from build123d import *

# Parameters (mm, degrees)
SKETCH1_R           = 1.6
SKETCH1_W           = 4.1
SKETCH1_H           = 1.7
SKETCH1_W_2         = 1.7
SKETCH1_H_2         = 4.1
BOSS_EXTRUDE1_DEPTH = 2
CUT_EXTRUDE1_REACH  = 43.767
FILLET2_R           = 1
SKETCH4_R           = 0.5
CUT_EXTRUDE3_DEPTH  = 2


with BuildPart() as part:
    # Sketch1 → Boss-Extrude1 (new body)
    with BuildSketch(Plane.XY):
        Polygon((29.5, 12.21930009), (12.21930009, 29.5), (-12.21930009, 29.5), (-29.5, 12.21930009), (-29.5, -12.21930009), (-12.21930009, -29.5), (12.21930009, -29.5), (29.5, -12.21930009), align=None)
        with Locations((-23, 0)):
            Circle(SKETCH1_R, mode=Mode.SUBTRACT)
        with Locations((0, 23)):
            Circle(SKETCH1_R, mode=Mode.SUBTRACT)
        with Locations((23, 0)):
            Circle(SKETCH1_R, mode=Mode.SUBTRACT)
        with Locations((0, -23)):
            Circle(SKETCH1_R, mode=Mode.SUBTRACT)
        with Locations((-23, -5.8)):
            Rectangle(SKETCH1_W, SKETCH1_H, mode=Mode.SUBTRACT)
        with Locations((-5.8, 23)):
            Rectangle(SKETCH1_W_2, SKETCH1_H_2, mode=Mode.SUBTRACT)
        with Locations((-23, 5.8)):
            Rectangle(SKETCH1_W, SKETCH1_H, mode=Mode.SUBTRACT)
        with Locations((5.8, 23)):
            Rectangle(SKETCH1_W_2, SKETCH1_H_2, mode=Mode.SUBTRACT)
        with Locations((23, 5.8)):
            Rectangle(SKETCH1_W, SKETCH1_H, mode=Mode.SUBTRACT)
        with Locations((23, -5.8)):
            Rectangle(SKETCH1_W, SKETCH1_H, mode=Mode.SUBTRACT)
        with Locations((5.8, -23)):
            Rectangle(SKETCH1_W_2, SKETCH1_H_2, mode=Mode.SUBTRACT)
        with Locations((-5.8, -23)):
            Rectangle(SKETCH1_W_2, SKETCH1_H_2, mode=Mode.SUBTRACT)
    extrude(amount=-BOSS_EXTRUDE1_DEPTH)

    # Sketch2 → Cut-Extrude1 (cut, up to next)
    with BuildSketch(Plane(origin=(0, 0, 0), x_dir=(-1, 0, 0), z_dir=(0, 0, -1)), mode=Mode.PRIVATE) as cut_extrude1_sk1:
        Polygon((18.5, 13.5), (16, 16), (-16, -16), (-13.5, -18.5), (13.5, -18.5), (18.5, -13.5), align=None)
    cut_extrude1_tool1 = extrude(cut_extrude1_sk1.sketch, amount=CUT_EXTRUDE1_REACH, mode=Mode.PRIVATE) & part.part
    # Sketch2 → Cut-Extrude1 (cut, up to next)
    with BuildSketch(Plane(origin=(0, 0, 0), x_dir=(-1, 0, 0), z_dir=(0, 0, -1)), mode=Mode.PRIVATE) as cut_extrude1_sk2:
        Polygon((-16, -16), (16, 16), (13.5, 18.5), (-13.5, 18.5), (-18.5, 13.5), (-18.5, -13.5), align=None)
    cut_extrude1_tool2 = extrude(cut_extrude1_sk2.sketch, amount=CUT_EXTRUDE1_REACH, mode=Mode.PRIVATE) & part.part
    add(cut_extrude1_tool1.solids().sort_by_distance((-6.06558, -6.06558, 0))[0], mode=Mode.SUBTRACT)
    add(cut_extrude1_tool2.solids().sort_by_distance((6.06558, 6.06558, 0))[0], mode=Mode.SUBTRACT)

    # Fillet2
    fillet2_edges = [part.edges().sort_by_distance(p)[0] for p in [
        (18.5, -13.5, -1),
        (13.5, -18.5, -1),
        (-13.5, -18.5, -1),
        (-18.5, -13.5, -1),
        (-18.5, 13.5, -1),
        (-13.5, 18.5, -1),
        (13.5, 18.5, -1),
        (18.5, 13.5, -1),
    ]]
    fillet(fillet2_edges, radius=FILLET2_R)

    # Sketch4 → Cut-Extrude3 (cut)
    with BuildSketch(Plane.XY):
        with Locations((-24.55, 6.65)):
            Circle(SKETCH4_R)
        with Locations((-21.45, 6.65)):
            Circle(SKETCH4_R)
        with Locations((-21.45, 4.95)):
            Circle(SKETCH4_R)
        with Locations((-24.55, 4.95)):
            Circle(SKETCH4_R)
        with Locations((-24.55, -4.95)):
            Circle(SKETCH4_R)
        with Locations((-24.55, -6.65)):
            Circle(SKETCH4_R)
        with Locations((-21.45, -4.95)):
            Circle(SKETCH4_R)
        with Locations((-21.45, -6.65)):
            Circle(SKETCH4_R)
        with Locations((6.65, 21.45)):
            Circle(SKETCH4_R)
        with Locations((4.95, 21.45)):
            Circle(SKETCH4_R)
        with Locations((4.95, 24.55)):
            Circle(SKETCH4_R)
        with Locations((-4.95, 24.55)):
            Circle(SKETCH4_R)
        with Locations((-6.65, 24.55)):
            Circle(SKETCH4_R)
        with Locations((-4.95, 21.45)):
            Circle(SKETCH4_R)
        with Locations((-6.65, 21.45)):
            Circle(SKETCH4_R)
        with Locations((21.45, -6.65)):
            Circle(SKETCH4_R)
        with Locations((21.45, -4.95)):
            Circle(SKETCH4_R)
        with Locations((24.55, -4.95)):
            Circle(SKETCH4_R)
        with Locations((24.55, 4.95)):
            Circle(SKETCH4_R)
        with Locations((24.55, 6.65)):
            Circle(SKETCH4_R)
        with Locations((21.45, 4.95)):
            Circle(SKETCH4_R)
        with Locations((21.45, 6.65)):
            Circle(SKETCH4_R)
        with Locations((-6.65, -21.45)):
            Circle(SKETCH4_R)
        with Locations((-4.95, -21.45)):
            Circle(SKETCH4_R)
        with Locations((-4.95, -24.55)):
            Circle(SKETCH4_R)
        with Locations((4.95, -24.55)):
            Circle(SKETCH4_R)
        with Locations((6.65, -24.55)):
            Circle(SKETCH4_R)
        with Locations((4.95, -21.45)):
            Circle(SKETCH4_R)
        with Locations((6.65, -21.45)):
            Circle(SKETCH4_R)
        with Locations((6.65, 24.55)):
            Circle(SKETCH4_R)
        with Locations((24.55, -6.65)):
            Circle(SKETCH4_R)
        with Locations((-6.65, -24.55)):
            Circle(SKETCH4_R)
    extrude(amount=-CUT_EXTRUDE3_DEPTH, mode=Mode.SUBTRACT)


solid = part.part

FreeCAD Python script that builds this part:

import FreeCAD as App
import Part
import Sketcher

V = App.Vector


def edges_at(feature, points):
    """Names of the edges that pass closest to the given points."""
    edges = feature.Shape.Edges
    near = lambda p: min(range(len(edges)), key=lambda i: edges[i].distToShape(Part.Vertex(*p))[0])
    return sorted({f"Edge{near(p) + 1}" for p in points})

doc = App.newDocument("Part")
params = doc.addObject("Spreadsheet::Sheet", "Params")
for row, (alias, value) in enumerate([
    ("sketch1_diameter", "3.2 mm"),
    ("sketch1_width", "1.7 mm"),
    ("sketch1_width2", "4.1 mm"),
    ("pad1_length", "2 mm"),
    ("sketch2_width", "27 mm"),
    ("sketch3_width", "27 mm"),
    ("fillet_radius", "1 mm"),
    ("sketch4_diameter", "1 mm"),
    ("pocket3_length", "2 mm"),
], start=1):
    params.set(f"A{row}", alias)
    params.set(f"B{row}", "=" + value)
    params.setAlias(f"B{row}", alias)

body = doc.addObject("PartDesign::Body", "Body")

sketch1 = body.newObject("Sketcher::SketchObject", "Sketch")
sketch1.AttachmentSupport = (doc.getObject("XY_Plane"), [""])
sketch1.MapMode = "FlatFace"
sketch1.addGeometry([
    Part.LineSegment(V(29.5, 12.2, 0), V(12.2, 29.5, 0)),
    Part.LineSegment(V(12.2, 29.5, 0), V(-12.2, 29.5, 0)),
    Part.LineSegment(V(-12.2, 29.5, 0), V(-29.5, 12.2, 0)),
    Part.LineSegment(V(-29.5, 12.2, 0), V(-29.5, -12.2, 0)),
    Part.LineSegment(V(-29.5, -12.2, 0), V(-12.2, -29.5, 0)),
    Part.LineSegment(V(-12.2, -29.5, 0), V(12.2, -29.5, 0)),
    Part.LineSegment(V(12.2, -29.5, 0), V(29.5, -12.2, 0)),
    Part.LineSegment(V(29.5, -12.2, 0), V(29.5, 12.2, 0)),
    Part.LineSegment(V(-5, -25.1, 0), V(-6.7, -25.1, 0)),
    Part.LineSegment(V(-6.7, -25.1, 0), V(-6.7, -20.9, 0)),
    Part.LineSegment(V(-6.7, -20.9, 0), V(-5, -20.9, 0)),
    Part.LineSegment(V(-5, -20.9, 0), V(-5, -25.1, 0)),
    Part.LineSegment(V(-20.9, -6.7, 0), V(-25.1, -6.7, 0)),
    Part.LineSegment(V(-25.1, -6.7, 0), V(-25.1, -5, 0)),
    Part.LineSegment(V(-25.1, -5, 0), V(-20.9, -5, 0)),
    Part.LineSegment(V(-20.9, -5, 0), V(-20.9, -6.7, 0)),
    Part.Circle(V(0, -23, 0), V(0, 0, 1), 1.6),
    Part.LineSegment(V(6.7, -25.1, 0), V(5, -25.1, 0)),
    Part.LineSegment(V(5, -25.1, 0), V(5, -20.9, 0)),
    Part.LineSegment(V(5, -20.9, 0), V(6.7, -20.9, 0)),
    Part.LineSegment(V(6.7, -20.9, 0), V(6.7, -25.1, 0)),
    Part.LineSegment(V(25.1, -6.7, 0), V(20.9, -6.7, 0)),
    Part.LineSegment(V(20.9, -6.7, 0), V(20.9, -5, 0)),
    Part.LineSegment(V(20.9, -5, 0), V(25.1, -5, 0)),
    Part.LineSegment(V(25.1, -5, 0), V(25.1, -6.7, 0)),
    Part.Circle(V(-23, 0, 0), V(0, 0, 1), 1.6),
    Part.LineSegment(V(-20.9, 5, 0), V(-25.1, 5, 0)),
    Part.LineSegment(V(-25.1, 5, 0), V(-25.1, 6.7, 0)),
    Part.LineSegment(V(-25.1, 6.7, 0), V(-20.9, 6.7, 0)),
    Part.LineSegment(V(-20.9, 6.7, 0), V(-20.9, 5, 0)),
    Part.LineSegment(V(-5, 20.9, 0), V(-6.7, 20.9, 0)),
    Part.LineSegment(V(-6.7, 20.9, 0), V(-6.7, 25.1, 0)),
    Part.LineSegment(V(-6.7, 25.1, 0), V(-5, 25.1, 0)),
    Part.LineSegment(V(-5, 25.1, 0), V(-5, 20.9, 0)),
    Part.Circle(V(23, 0, 0), V(0, 0, 1), 1.6),
    Part.LineSegment(V(25.1, 5, 0), V(20.9, 5, 0)),
    Part.LineSegment(V(20.9, 5, 0), V(20.9, 6.7, 0)),
    Part.LineSegment(V(20.9, 6.7, 0), V(25.1, 6.7, 0)),
    Part.LineSegment(V(25.1, 6.7, 0), V(25.1, 5, 0)),
    Part.Circle(V(0, 23, 0), V(0, 0, 1), 1.6),
    Part.LineSegment(V(6.7, 20.9, 0), V(5, 20.9, 0)),
    Part.LineSegment(V(5, 20.9, 0), V(5, 25.1, 0)),
    Part.LineSegment(V(5, 25.1, 0), V(6.7, 25.1, 0)),
    Part.LineSegment(V(6.7, 25.1, 0), V(6.7, 20.9, 0)),
], False)
sketch1.addConstraint([
    Sketcher.Constraint("Coincident", 0, 2, 1, 1),
    Sketcher.Constraint("Coincident", 1, 2, 2, 1),
    Sketcher.Constraint("Coincident", 2, 2, 3, 1),
    Sketcher.Constraint("Coincident", 3, 2, 4, 1),
    Sketcher.Constraint("Coincident", 4, 2, 5, 1),
    Sketcher.Constraint("Coincident", 5, 2, 6, 1),
    Sketcher.Constraint("Coincident", 6, 2, 7, 1),
    Sketcher.Constraint("Coincident", 7, 2, 0, 1),
    Sketcher.Constraint("Coincident", 8, 2, 9, 1),
    Sketcher.Constraint("Coincident", 9, 2, 10, 1),
    Sketcher.Constraint("Coincident", 10, 2, 11, 1),
    Sketcher.Constraint("Coincident", 11, 2, 8, 1),
    Sketcher.Constraint("Coincident", 12, 2, 13, 1),
    Sketcher.Constraint("Coincident", 13, 2, 14, 1),
    Sketcher.Constraint("Coincident", 14, 2, 15, 1),
    Sketcher.Constraint("Coincident", 15, 2, 12, 1),
    Sketcher.Constraint("Coincident", 17, 2, 18, 1),
    Sketcher.Constraint("Coincident", 18, 2, 19, 1),
    Sketcher.Constraint("Coincident", 19, 2, 20, 1),
    Sketcher.Constraint("Coincident", 20, 2, 17, 1),
    Sketcher.Constraint("Coincident", 21, 2, 22, 1),
    Sketcher.Constraint("Coincident", 22, 2, 23, 1),
    Sketcher.Constraint("Coincident", 23, 2, 24, 1),
    Sketcher.Constraint("Coincident", 24, 2, 21, 1),
    Sketcher.Constraint("Coincident", 26, 2, 27, 1),
    Sketcher.Constraint("Coincident", 27, 2, 28, 1),
    Sketcher.Constraint("Coincident", 28, 2, 29, 1),
    Sketcher.Constraint("Coincident", 29, 2, 26, 1),
    Sketcher.Constraint("Coincident", 30, 2, 31, 1),
    Sketcher.Constraint("Coincident", 31, 2, 32, 1),
    Sketcher.Constraint("Coincident", 32, 2, 33, 1),
    Sketcher.Constraint("Coincident", 33, 2, 30, 1),
    Sketcher.Constraint("Coincident", 35, 2, 36, 1),
    Sketcher.Constraint("Coincident", 36, 2, 37, 1),
    Sketcher.Constraint("Coincident", 37, 2, 38, 1),
    Sketcher.Constraint("Coincident", 38, 2, 35, 1),
    Sketcher.Constraint("Coincident", 40, 2, 41, 1),
    Sketcher.Constraint("Coincident", 41, 2, 42, 1),
    Sketcher.Constraint("Coincident", 42, 2, 43, 1),
    Sketcher.Constraint("Coincident", 43, 2, 40, 1),
    Sketcher.Constraint("Horizontal", 1),
    Sketcher.Constraint("Vertical", 3),
    Sketcher.Constraint("Horizontal", 5),
    Sketcher.Constraint("Vertical", 7),
    Sketcher.Constraint("Horizontal", 8),
    Sketcher.Constraint("Vertical", 9),
    Sketcher.Constraint("Horizontal", 10),
    Sketcher.Constraint("Vertical", 11),
    Sketcher.Constraint("Horizontal", 12),
    Sketcher.Constraint("Vertical", 13),
    Sketcher.Constraint("Horizontal", 14),
    Sketcher.Constraint("Vertical", 15),
    Sketcher.Constraint("Horizontal", 17),
    Sketcher.Constraint("Vertical", 18),
    Sketcher.Constraint("Horizontal", 19),
    Sketcher.Constraint("Vertical", 20),
    Sketcher.Constraint("Horizontal", 21),
    Sketcher.Constraint("Vertical", 22),
    Sketcher.Constraint("Horizontal", 23),
    Sketcher.Constraint("Vertical", 24),
    Sketcher.Constraint("Horizontal", 26),
    Sketcher.Constraint("Vertical", 27),
    Sketcher.Constraint("Horizontal", 28),
    Sketcher.Constraint("Vertical", 29),
    Sketcher.Constraint("Horizontal", 30),
    Sketcher.Constraint("Vertical", 31),
    Sketcher.Constraint("Horizontal", 32),
    Sketcher.Constraint("Vertical", 33),
    Sketcher.Constraint("Horizontal", 35),
    Sketcher.Constraint("Vertical", 36),
    Sketcher.Constraint("Horizontal", 37),
    Sketcher.Constraint("Vertical", 38),
    Sketcher.Constraint("Horizontal", 40),
    Sketcher.Constraint("Vertical", 41),
    Sketcher.Constraint("Horizontal", 42),
    Sketcher.Constraint("Vertical", 43),
    Sketcher.Constraint("Equal", 16, 25),
    Sketcher.Constraint("Equal", 25, 34),
    Sketcher.Constraint("Equal", 34, 39),
    Sketcher.Constraint("Symmetric", 25, 3, 34, 3, -1, 1),
    Sketcher.Constraint("Symmetric", 16, 3, 39, 3, -1, 1),
    Sketcher.Constraint("Symmetric", 0, 2, 4, 2, -1, 1),
    Sketcher.Constraint("Symmetric", 2, 2, 6, 2, -1, 1),
    Sketcher.Constraint("Symmetric", 23, 2, 26, 2, -1, 1),
    Sketcher.Constraint("Symmetric", 21, 2, 28, 2, -1, 1),
    Sketcher.Constraint("Symmetric", 19, 2, 30, 2, -1, 1),
    Sketcher.Constraint("Symmetric", 17, 2, 32, 2, -1, 1),
    Sketcher.Constraint("Symmetric", 14, 2, 35, 2, -1, 1),
    Sketcher.Constraint("Symmetric", 12, 2, 37, 2, -1, 1),
    Sketcher.Constraint("Symmetric", 10, 2, 40, 2, -1, 1),
    Sketcher.Constraint("Symmetric", 8, 2, 42, 2, -1, 1),
    Sketcher.Constraint("Symmetric", 11, 2, 17, 2, -2),
    Sketcher.Constraint("Symmetric", 9, 2, 19, 2, -2),
    Sketcher.Constraint("Symmetric", 15, 2, 21, 2, -2),
    Sketcher.Constraint("Symmetric", 13, 2, 23, 2, -2),
    Sketcher.Constraint("PointOnObject", 16, 3, -2),
    Sketcher.Constraint("PointOnObject", 25, 3, -1),
    Sketcher.Constraint("Perpendicular", 0, 2),
    Sketcher.Constraint("Perpendicular", 2, 4),
    Sketcher.Constraint("Perpendicular", 4, 6),
    Sketcher.Constraint("Horizontal", 3, 2, 6, 2),
    Sketcher.Constraint("Vertical", 1, 2, 4, 2),
    Sketcher.Constraint("Equal", 5, 3),
    Sketcher.Constraint("Equal", 37, 9),
    Sketcher.Constraint("Equal", 42, 13),
    Sketcher.Constraint("Diameter", 16, 3.2),
    Sketcher.Constraint("DistanceX", 8, 2, 8, 1, 1.7),
    Sketcher.Constraint("DistanceX", 12, 2, 12, 1, 4.1),
    Sketcher.Constraint("DistanceY", 16, 3, -1, 1, 23.0),
    Sketcher.Constraint("DistanceX", 25, 3, -1, 1, 23.0),
    Sketcher.Constraint("DistanceY", 9, 2, 13, 2, 16.0),
    Sketcher.Constraint("DistanceX", 18, 2, 21, 2, 16.0),
    Sketcher.Constraint("DistanceY", -1, 1, 0, 2, 29.5),
    Sketcher.Constraint("DistanceX", 11, 2, 17, 2, 9.9),
    Sketcher.Constraint("DistanceY", 13, 2, 26, 2, 9.9),
    Sketcher.Constraint("DistanceX", 1, 2, 1, 1, 24.4386),
])
sketch1.setExpression("Constraints[105]", "Params.sketch1_diameter")
sketch1.setExpression("Constraints[106]", "Params.sketch1_width")
sketch1.setExpression("Constraints[107]", "Params.sketch1_width2")
pad1 = body.newObject("PartDesign::Pad", "Pad")
pad1.Profile = sketch1
pad1.setExpression("Length", "Params.pad1_length")
pad1.Reversed = True

sketch2 = body.newObject("Sketcher::SketchObject", "Sketch001")
sketch2.AttachmentSupport = (doc.getObject("XY_Plane"), [""])
sketch2.MapMode = "FlatFace"
sketch2.addGeometry([
    Part.LineSegment(V(-18.5, 13.5, 0), V(-16, 16, 0)),
    Part.LineSegment(V(-16, 16, 0), V(16, -16, 0)),
    Part.LineSegment(V(16, -16, 0), V(13.5, -18.5, 0)),
    Part.LineSegment(V(13.5, -18.5, 0), V(-13.5, -18.5, 0)),
    Part.LineSegment(V(-13.5, -18.5, 0), V(-18.5, -13.5, 0)),
    Part.LineSegment(V(-18.5, -13.5, 0), V(-18.5, 13.5, 0)),
], False)
sketch2.addConstraint([
    Sketcher.Constraint("Coincident", 0, 2, 1, 1),
    Sketcher.Constraint("Coincident", 1, 2, 2, 1),
    Sketcher.Constraint("Coincident", 2, 2, 3, 1),
    Sketcher.Constraint("Coincident", 3, 2, 4, 1),
    Sketcher.Constraint("Coincident", 4, 2, 5, 1),
    Sketcher.Constraint("Coincident", 5, 2, 0, 1),
    Sketcher.Constraint("Horizontal", 3),
    Sketcher.Constraint("Vertical", 5),
    Sketcher.Constraint("Symmetric", 0, 2, 1, 2, -1, 1),
    Sketcher.Constraint("Perpendicular", 0, 1),
    Sketcher.Constraint("Perpendicular", 1, 2),
    Sketcher.Constraint("Perpendicular", 2, 4),
    Sketcher.Constraint("Equal", 3, 5),
    Sketcher.Constraint("Equal", 0, 2),
    Sketcher.Constraint("DistanceX", 3, 2, 3, 1, 27.0),
    Sketcher.Constraint("DistanceX", 0, 2, -1, 1, 16.0),
    Sketcher.Constraint("DistanceX", -1, 1, 2, 2, 13.5),
])
sketch2.setExpression("Constraints[14]", "Params.sketch2_width")
pocket1 = body.newObject("PartDesign::Pocket", "Pocket")
pocket1.Profile = sketch2
pocket1.Type = "UpToFirst"

sketch3 = body.newObject("Sketcher::SketchObject", "Sketch002")
sketch3.AttachmentSupport = (doc.getObject("XY_Plane"), [""])
sketch3.MapMode = "FlatFace"
sketch3.addGeometry([
    Part.LineSegment(V(16, -16, 0), V(-16, 16, 0)),
    Part.LineSegment(V(-16, 16, 0), V(-13.5, 18.5, 0)),
    Part.LineSegment(V(-13.5, 18.5, 0), V(13.5, 18.5, 0)),
    Part.LineSegment(V(13.5, 18.5, 0), V(18.5, 13.5, 0)),
    Part.LineSegment(V(18.5, 13.5, 0), V(18.5, -13.5, 0)),
    Part.LineSegment(V(18.5, -13.5, 0), V(16, -16, 0)),
], False)
sketch3.addConstraint([
    Sketcher.Constraint("Coincident", 0, 2, 1, 1),
    Sketcher.Constraint("Coincident", 1, 2, 2, 1),
    Sketcher.Constraint("Coincident", 2, 2, 3, 1),
    Sketcher.Constraint("Coincident", 3, 2, 4, 1),
    Sketcher.Constraint("Coincident", 4, 2, 5, 1),
    Sketcher.Constraint("Coincident", 5, 2, 0, 1),
    Sketcher.Constraint("Horizontal", 2),
    Sketcher.Constraint("Vertical", 4),
    Sketcher.Constraint("Symmetric", 0, 2, 5, 2, -1, 1),
    Sketcher.Constraint("Perpendicular", 0, 1),
    Sketcher.Constraint("Perpendicular", 1, 3),
    Sketcher.Constraint("Perpendicular", 3, 5),
    Sketcher.Constraint("Equal", 2, 4),
    Sketcher.Constraint("Equal", 1, 5),
    Sketcher.Constraint("DistanceX", 2, 1, 2, 2, 27.0),
    Sketcher.Constraint("DistanceX", 0, 2, -1, 1, 16.0),
    Sketcher.Constraint("DistanceX", 1, 2, -1, 1, 13.5),
])
sketch3.setExpression("Constraints[14]", "Params.sketch3_width")
pocket2 = body.newObject("PartDesign::Pocket", "Pocket001")
pocket2.Profile = sketch3
pocket2.Type = "UpToFirst"
doc.recompute()

fillet = body.newObject("PartDesign::Fillet", "Fillet")
fillet.Base = (pocket2, edges_at(pocket2, [
    (18.5, -13.5, -1),
    (13.5, -18.5, -1),
    (-13.5, -18.5, -1),
    (-18.5, -13.5, -1),
    (-18.5, 13.5, -1),
    (-13.5, 18.5, -1),
    (13.5, 18.5, -1),
    (18.5, 13.5, -1),
]))
fillet.setExpression("Radius", "Params.fillet_radius")

sketch4 = body.newObject("Sketcher::SketchObject", "Sketch003")
sketch4.AttachmentSupport = (doc.getObject("XY_Plane"), [""])
sketch4.MapMode = "FlatFace"
sketch4.addGeometry([
    Part.Circle(V(-24.6, 6.7, 0), V(0, 0, 1), 0.5),
    Part.Circle(V(-21.4, 6.7, 0), V(0, 0, 1), 0.5),
    Part.Circle(V(-21.4, 5, 0), V(0, 0, 1), 0.5),
    Part.Circle(V(-24.6, 5, 0), V(0, 0, 1), 0.5),
    Part.Circle(V(-24.6, -5, 0), V(0, 0, 1), 0.5),
    Part.Circle(V(-24.6, -6.7, 0), V(0, 0, 1), 0.5),
    Part.Circle(V(-21.4, -5, 0), V(0, 0, 1), 0.5),
    Part.Circle(V(-21.4, -6.7, 0), V(0, 0, 1), 0.5),
    Part.Circle(V(6.7, 21.4, 0), V(0, 0, 1), 0.5),
    Part.Circle(V(5, 21.4, 0), V(0, 0, 1), 0.5),
    Part.Circle(V(5, 24.6, 0), V(0, 0, 1), 0.5),
    Part.Circle(V(-5, 24.6, 0), V(0, 0, 1), 0.5),
    Part.Circle(V(-6.7, 24.6, 0), V(0, 0, 1), 0.5),
    Part.Circle(V(-5, 21.4, 0), V(0, 0, 1), 0.5),
    Part.Circle(V(-6.7, 21.4, 0), V(0, 0, 1), 0.5),
    Part.Circle(V(21.4, -6.7, 0), V(0, 0, 1), 0.5),
    Part.Circle(V(21.4, -5, 0), V(0, 0, 1), 0.5),
    Part.Circle(V(24.6, -5, 0), V(0, 0, 1), 0.5),
    Part.Circle(V(24.6, 5, 0), V(0, 0, 1), 0.5),
    Part.Circle(V(24.6, 6.7, 0), V(0, 0, 1), 0.5),
    Part.Circle(V(21.4, 5, 0), V(0, 0, 1), 0.5),
    Part.Circle(V(21.4, 6.7, 0), V(0, 0, 1), 0.5),
    Part.Circle(V(-6.7, -21.4, 0), V(0, 0, 1), 0.5),
    Part.Circle(V(-5, -21.4, 0), V(0, 0, 1), 0.5),
    Part.Circle(V(-5, -24.6, 0), V(0, 0, 1), 0.5),
    Part.Circle(V(5, -24.6, 0), V(0, 0, 1), 0.5),
    Part.Circle(V(6.7, -24.6, 0), V(0, 0, 1), 0.5),
    Part.Circle(V(5, -21.4, 0), V(0, 0, 1), 0.5),
    Part.Circle(V(6.7, -21.4, 0), V(0, 0, 1), 0.5),
    Part.Circle(V(6.7, 24.6, 0), V(0, 0, 1), 0.5),
    Part.Circle(V(24.6, -6.7, 0), V(0, 0, 1), 0.5),
    Part.Circle(V(-6.7, -24.6, 0), V(0, 0, 1), 0.5),
], False)
sketch4.addConstraint([
    Sketcher.Constraint("Equal", 0, 1),
    Sketcher.Constraint("Equal", 1, 2),
    Sketcher.Constraint("Equal", 2, 3),
    Sketcher.Constraint("Equal", 3, 4),
    Sketcher.Constraint("Equal", 4, 5),
    Sketcher.Constraint("Equal", 5, 6),
    Sketcher.Constraint("Equal", 6, 7),
    Sketcher.Constraint("Equal", 7, 8),
    Sketcher.Constraint("Equal", 8, 9),
    Sketcher.Constraint("Equal", 9, 10),
    Sketcher.Constraint("Equal", 10, 11),
    Sketcher.Constraint("Equal", 11, 12),
    Sketcher.Constraint("Equal", 12, 13),
    Sketcher.Constraint("Equal", 13, 14),
    Sketcher.Constraint("Equal", 14, 15),
    Sketcher.Constraint("Equal", 15, 16),
    Sketcher.Constraint("Equal", 16, 17),
    Sketcher.Constraint("Equal", 17, 18),
    Sketcher.Constraint("Equal", 18, 19),
    Sketcher.Constraint("Equal", 19, 20),
    Sketcher.Constraint("Equal", 20, 21),
    Sketcher.Constraint("Equal", 21, 22),
    Sketcher.Constraint("Equal", 22, 23),
    Sketcher.Constraint("Equal", 23, 24),
    Sketcher.Constraint("Equal", 24, 25),
    Sketcher.Constraint("Equal", 25, 26),
    Sketcher.Constraint("Equal", 26, 27),
    Sketcher.Constraint("Equal", 27, 28),
    Sketcher.Constraint("Equal", 28, 29),
    Sketcher.Constraint("Equal", 29, 30),
    Sketcher.Constraint("Equal", 30, 31),
    Sketcher.Constraint("Symmetric", 1, 3, 15, 3, -1, 1),
    Sketcher.Constraint("Symmetric", 2, 3, 16, 3, -1, 1),
    Sketcher.Constraint("Symmetric", 3, 3, 17, 3, -1, 1),
    Sketcher.Constraint("Symmetric", 4, 3, 18, 3, -1, 1),
    Sketcher.Constraint("Symmetric", 5, 3, 19, 3, -1, 1),
    Sketcher.Constraint("Symmetric", 6, 3, 20, 3, -1, 1),
    Sketcher.Constraint("Symmetric", 7, 3, 21, 3, -1, 1),
    Sketcher.Constraint("Symmetric", 8, 3, 22, 3, -1, 1),
    Sketcher.Constraint("Symmetric", 9, 3, 23, 3, -1, 1),
    Sketcher.Constraint("Symmetric", 10, 3, 24, 3, -1, 1),
    Sketcher.Constraint("Symmetric", 11, 3, 25, 3, -1, 1),
    Sketcher.Constraint("Symmetric", 12, 3, 26, 3, -1, 1),
    Sketcher.Constraint("Symmetric", 13, 3, 27, 3, -1, 1),
    Sketcher.Constraint("Symmetric", 14, 3, 28, 3, -1, 1),
    Sketcher.Constraint("Symmetric", 0, 3, 30, 3, -1, 1),
    Sketcher.Constraint("Symmetric", 29, 3, 31, 3, -1, 1),
    Sketcher.Constraint("Symmetric", 10, 3, 11, 3, -2),
    Sketcher.Constraint("Symmetric", 9, 3, 13, 3, -2),
    Sketcher.Constraint("Symmetric", 8, 3, 14, 3, -2),
    Sketcher.Constraint("Symmetric", 7, 3, 15, 3, -2),
    Sketcher.Constraint("Symmetric", 6, 3, 16, 3, -2),
    Sketcher.Constraint("Symmetric", 4, 3, 17, 3, -2),
    Sketcher.Constraint("Symmetric", 0, 3, 19, 3, -2),
    Sketcher.Constraint("Symmetric", 12, 3, 29, 3, -2),
    Sketcher.Constraint("Horizontal", 0, 3, 1, 3),
    Sketcher.Constraint("Horizontal", 2, 3, 3, 3),
    Sketcher.Constraint("Horizontal", 8, 3, 9, 3),
    Sketcher.Constraint("Horizontal", 11, 3, 12, 3),
    Sketcher.Constraint("Vertical", 1, 3, 2, 3),
    Sketcher.Constraint("Vertical", 0, 3, 3, 3),
    Sketcher.Constraint("Vertical", 9, 3, 10, 3),
    Sketcher.Constraint("Vertical", 12, 3, 14, 3),
    Sketcher.Constraint("Diameter", 0, 1.0),
    Sketcher.Constraint("DistanceX", 0, 3, 1, 3, 3.1),
    Sketcher.Constraint("DistanceY", 2, 3, 1, 3, 1.7),
    Sketcher.Constraint("DistanceY", 4, 3, 3, 3, 9.9),
    Sketcher.Constraint("DistanceX", 1, 3, 8, 3, 28.1),
    Sketcher.Constraint("DistanceY", 1, 3, 8, 3, 14.8),
    Sketcher.Constraint("DistanceX", 9, 3, 8, 3, 1.7),
    Sketcher.Constraint("DistanceY", 9, 3, 10, 3, 3.1),
    Sketcher.Constraint("DistanceX", 11, 3, 10, 3, 9.9),
])
sketch4.setExpression("Constraints[63]", "Params.sketch4_diameter")
pocket3 = body.newObject("PartDesign::Pocket", "Pocket002")
pocket3.Profile = sketch4
pocket3.setExpression("Length", "Params.pocket3_length")

doc.recompute()
